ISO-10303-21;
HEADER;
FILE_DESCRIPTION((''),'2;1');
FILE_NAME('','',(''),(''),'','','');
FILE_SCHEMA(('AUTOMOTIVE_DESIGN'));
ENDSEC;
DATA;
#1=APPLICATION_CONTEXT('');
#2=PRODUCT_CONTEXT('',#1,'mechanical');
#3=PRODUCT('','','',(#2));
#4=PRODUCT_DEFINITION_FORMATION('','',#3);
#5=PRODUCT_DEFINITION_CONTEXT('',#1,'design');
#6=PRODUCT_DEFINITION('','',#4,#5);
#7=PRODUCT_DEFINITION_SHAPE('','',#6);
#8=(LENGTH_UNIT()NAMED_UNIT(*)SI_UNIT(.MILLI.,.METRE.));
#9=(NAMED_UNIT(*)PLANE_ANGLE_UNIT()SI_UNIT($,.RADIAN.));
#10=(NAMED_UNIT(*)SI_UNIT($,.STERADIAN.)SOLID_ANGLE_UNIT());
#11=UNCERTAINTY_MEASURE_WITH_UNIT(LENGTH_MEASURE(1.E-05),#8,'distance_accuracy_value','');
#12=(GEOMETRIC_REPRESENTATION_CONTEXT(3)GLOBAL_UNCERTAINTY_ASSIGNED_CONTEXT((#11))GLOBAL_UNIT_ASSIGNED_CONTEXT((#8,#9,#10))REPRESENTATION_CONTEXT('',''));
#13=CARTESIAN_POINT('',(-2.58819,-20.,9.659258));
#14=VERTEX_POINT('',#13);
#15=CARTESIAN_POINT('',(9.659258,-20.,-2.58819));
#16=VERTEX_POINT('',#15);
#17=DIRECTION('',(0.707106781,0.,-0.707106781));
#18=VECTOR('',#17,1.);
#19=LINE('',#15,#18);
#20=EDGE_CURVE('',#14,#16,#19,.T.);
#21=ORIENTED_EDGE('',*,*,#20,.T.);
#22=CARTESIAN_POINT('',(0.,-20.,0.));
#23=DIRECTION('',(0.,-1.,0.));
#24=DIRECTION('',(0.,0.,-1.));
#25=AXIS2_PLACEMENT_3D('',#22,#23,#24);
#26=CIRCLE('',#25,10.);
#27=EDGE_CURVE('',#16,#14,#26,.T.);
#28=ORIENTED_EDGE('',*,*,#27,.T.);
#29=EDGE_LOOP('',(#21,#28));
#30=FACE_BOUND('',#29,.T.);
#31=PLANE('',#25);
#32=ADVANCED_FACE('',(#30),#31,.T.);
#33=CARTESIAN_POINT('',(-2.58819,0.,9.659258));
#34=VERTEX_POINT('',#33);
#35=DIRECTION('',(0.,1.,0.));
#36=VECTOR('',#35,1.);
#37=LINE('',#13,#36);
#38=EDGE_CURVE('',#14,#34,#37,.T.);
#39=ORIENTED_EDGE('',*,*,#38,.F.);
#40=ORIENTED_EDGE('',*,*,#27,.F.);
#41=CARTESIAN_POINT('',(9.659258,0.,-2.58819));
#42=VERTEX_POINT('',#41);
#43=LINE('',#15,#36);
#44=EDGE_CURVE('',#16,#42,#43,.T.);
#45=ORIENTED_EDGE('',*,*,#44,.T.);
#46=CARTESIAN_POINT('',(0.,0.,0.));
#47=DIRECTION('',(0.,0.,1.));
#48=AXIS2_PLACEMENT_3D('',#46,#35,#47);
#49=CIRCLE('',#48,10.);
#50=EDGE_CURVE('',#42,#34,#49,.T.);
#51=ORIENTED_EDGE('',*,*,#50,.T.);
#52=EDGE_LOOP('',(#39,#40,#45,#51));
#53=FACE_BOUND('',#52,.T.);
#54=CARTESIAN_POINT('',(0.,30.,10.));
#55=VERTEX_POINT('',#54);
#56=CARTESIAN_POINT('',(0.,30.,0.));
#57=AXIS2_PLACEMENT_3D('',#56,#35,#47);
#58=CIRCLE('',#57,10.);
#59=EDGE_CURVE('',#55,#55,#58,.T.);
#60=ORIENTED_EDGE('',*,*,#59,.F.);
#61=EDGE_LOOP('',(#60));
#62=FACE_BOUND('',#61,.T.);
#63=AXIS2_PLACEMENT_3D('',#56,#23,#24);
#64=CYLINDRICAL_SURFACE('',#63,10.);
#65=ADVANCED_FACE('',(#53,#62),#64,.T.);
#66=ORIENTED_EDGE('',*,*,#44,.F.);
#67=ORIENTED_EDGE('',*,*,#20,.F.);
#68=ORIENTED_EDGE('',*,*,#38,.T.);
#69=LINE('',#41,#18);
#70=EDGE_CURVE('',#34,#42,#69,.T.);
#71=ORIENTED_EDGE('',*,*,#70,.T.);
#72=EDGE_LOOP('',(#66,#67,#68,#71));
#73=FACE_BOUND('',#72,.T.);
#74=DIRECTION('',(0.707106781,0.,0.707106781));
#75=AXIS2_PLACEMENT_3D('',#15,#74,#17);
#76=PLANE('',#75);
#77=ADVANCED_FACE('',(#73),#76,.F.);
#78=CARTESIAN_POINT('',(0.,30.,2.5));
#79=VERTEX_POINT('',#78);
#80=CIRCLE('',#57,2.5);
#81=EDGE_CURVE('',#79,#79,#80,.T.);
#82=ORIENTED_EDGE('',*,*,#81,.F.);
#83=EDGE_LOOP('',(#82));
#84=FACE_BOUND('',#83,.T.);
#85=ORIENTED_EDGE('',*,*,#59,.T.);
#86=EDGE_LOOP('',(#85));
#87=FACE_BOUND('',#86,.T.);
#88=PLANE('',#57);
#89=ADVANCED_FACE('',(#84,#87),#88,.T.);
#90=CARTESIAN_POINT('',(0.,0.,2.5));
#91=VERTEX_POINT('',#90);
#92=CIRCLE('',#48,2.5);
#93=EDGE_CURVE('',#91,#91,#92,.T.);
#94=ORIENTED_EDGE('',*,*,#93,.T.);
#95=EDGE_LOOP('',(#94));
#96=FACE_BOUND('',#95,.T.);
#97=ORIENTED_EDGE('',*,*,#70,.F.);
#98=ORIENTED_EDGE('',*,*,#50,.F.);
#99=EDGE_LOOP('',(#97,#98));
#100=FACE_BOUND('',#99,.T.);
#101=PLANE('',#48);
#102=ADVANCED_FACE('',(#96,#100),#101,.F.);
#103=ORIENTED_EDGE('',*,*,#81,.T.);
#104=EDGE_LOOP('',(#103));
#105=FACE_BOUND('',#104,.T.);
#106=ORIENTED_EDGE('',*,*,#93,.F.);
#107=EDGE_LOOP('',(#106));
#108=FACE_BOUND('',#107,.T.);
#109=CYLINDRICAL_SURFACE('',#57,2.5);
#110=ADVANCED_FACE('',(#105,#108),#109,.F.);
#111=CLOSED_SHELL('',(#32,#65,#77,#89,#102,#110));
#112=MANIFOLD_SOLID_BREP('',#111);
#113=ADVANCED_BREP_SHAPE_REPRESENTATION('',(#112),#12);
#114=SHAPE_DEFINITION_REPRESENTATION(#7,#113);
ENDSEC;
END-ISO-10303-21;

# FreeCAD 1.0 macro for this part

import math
import FreeCAD as App
import Part
import Sketcher
Q = App.Units.Quantity

doc = App.newDocument("Part")
body = doc.addObject("PartDesign::Body", "Body")

sketch1 = body.newObject("Sketcher::SketchObject", "Sketch")
sketch1.AttachmentSupport = (doc.getObject("XZ_Plane"), [""])
sketch1.MapMode = "FlatFace"
sketch1.addGeometry(Part.Circle(App.Vector(0, 0, 0), App.Vector(0, 0, 1), 10), False)
sketch1.addConstraint([
    Sketcher.Constraint("Coincident", 0, 3, -1, 1),
    Sketcher.Constraint("Diameter", 0, 20.0),
])
pad1 = body.newObject("PartDesign::Pad", "Pad")
pad1.Profile = sketch1
pad1.Length = 30
pad1.Reversed = True

sketch2 = body.newObject("Sketcher::SketchObject", "Sketch001")
sketch2.AttachmentSupport = (doc.getObject("XZ_Plane"), [""])
sketch2.MapMode = "FlatFace"
sketch2.AttachmentOffset = App.Placement(App.Vector(0, 0, -30), App.Rotation())
sketch2.addGeometry(Part.Circle(App.Vector(0, 0, 0), App.Vector(0, 0, 1), 2.5), False)
sketch2.addConstraint([
    Sketcher.Constraint("Coincident", 0, 3, -1, 1),
    Sketcher.Constraint("Diameter", 0, 5.0),
])
doc.recompute()
hole = body.newObject("PartDesign::Hole", "Hole")
hole.Profile = sketch2
hole.ThreadType = "None"
hole.Diameter = 5
hole.DepthType = "ThroughAll"
hole.Reversed = True

sketch3 = body.newObject("Sketcher::SketchObject", "Sketch002")
sketch3.AttachmentSupport = (doc.getObject("XZ_Plane"), [""])
sketch3.MapMode = "FlatFace"
sketch3.AttachmentOffset = App.Placement(App.Vector(0, 0, 20), App.Rotation())
sketch3.addGeometry([
    Part.LineSegment(App.Vector(-3, 10, 0), App.Vector(10, -3, 0)),
    Part.ArcOfCircle(Part.Circle(App.Vector(0, 0, 0), App.Vector(0, 0, 1), 10), math.radians(-15), math.radians(105)),
], False)
sketch3.addConstraint([
    Sketcher.Constraint("Coincident", 0, 1, 1, 2),
    Sketcher.Constraint("Coincident", 1, 1, 0, 2),
    Sketcher.Constraint("Coincident", 1, 3, -1, 1),
    Sketcher.Constraint("Radius", 1, 10.0),
    Sketcher.Constraint("Angle", 0, Q("-45 deg")),
    Sketcher.Constraint("Distance", 0, 17.320508),
])
pad2 = body.newObject("PartDesign::Pad", "Pad001")
pad2.Profile = sketch3
pad2.Length = 20
pad2.Reversed = True

doc.recompute()
